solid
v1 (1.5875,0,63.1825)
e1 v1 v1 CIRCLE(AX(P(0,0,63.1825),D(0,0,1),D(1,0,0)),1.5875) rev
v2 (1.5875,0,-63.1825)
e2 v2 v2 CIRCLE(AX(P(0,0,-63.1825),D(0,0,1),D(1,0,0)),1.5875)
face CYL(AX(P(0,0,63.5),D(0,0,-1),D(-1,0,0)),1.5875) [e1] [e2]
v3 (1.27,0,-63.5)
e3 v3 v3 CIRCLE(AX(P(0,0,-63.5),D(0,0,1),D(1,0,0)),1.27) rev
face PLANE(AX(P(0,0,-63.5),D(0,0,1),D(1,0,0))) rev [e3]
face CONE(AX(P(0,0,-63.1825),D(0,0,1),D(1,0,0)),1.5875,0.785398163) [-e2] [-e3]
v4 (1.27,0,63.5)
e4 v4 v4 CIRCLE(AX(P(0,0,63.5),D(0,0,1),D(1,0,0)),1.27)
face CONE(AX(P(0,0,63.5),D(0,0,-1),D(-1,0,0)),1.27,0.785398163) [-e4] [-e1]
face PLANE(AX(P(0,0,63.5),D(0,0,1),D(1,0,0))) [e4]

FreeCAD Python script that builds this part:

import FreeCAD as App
import Part
import Sketcher
Q = App.Units.Quantity


def edges_at(feature, points):
    """Names of the edges that pass closest to the given points."""
    edges = feature.Shape.Edges
    near = lambda p: min(range(len(edges)), key=lambda i: edges[i].distToShape(Part.Vertex(*p))[0])
    return sorted({f"Edge{near(p) + 1}" for p in points})

doc = App.newDocument("Part")
body = doc.addObject("PartDesign::Body", "Body")

# Sketch on XY plane
sketch1 = doc.addObject("Sketcher::SketchObject", "Sketch")
body.addObject(sketch1)
sketch1.AttachmentSupport = (doc.XY_Plane, [""])
sketch1.MapMode = "FlatFace"
sketch1.addGeometry(Part.Circle(App.Vector(0, 0, 0), App.Vector(0, 0, 1), 1.6), False)
sketch1.addConstraint(Sketcher.Constraint("Coincident", 0, 3, -1, 1))
sketch1.addConstraint(Sketcher.Constraint("Diameter", 0, Q("0.125 in")))
pad1 = doc.addObject("PartDesign::Pad", "Pad")
body.addObject(pad1)
pad1.Profile = sketch1
pad1.Length = Q("5 in")
pad1.Midplane = True
doc.recompute()

chamfer = doc.addObject("PartDesign::Chamfer", "Chamfer")
body.addObject(chamfer)
chamfer.Base = (pad1, edges_at(pad1, [(-1.587, 0, -63.5), (-1.587, 0, 63.5)]))
chamfer.Size = Q("0.0125 in")

doc.recompute()
